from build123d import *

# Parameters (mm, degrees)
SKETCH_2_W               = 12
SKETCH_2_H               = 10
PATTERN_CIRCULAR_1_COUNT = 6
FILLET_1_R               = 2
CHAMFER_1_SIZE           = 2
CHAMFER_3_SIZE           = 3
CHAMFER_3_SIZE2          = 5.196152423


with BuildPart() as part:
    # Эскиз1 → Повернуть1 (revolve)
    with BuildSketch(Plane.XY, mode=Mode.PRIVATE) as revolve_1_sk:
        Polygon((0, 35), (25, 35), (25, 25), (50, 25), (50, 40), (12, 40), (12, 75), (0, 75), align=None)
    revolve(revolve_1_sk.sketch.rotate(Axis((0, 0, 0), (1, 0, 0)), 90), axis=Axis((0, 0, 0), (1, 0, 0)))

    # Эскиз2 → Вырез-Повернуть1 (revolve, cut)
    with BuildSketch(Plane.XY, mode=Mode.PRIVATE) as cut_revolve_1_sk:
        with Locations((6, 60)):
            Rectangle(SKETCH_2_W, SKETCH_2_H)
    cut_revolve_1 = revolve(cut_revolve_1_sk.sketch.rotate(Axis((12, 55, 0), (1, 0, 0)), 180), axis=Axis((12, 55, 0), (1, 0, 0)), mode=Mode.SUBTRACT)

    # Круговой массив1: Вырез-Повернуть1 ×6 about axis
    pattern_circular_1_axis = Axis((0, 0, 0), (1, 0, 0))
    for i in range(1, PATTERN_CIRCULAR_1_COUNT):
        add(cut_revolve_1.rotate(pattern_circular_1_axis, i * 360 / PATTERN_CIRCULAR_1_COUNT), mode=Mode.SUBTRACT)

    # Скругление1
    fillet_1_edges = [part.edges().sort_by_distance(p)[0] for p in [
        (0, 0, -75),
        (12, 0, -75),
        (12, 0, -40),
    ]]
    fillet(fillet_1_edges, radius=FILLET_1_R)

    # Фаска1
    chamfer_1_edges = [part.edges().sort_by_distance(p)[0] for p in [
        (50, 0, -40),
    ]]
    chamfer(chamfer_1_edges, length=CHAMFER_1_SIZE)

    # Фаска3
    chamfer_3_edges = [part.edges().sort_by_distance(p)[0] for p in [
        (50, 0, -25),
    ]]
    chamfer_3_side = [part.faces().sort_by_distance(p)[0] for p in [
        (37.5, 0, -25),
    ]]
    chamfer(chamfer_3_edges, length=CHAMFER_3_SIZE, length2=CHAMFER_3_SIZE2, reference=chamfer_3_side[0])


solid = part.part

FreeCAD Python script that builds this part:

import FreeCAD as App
import Part
import Sketcher
from FreeCAD import Vector


def edges_at(feature, points):
    """Names of the edges that pass closest to the given points."""
    edges = feature.Shape.Edges
    near = lambda p: min(range(len(edges)), key=lambda i: edges[i].distToShape(Part.Vertex(*p))[0])
    return sorted({f"Edge{near(p) + 1}" for p in points})

doc = App.newDocument("Part")
body = doc.addObject("PartDesign::Body", "Body")

# Sketch on XY plane
sketch1 = body.newObject("Sketcher::SketchObject", "Sketch")
sketch1.AttachmentSupport = (doc.getObject("XY_Plane"), [""])
sketch1.MapMode = "FlatFace"
sketch1.addGeometry(Part.LineSegment(Vector(0, 35, 0), Vector(25, 35, 0)), False)
sketch1.addGeometry(Part.LineSegment(Vector(25, 35, 0), Vector(25, 25, 0)), False)
sketch1.addGeometry(Part.LineSegment(Vector(25, 25, 0), Vector(50, 25, 0)), False)
sketch1.addGeometry(Part.LineSegment(Vector(50, 25, 0), Vector(50, 40, 0)), False)
sketch1.addGeometry(Part.LineSegment(Vector(50, 40, 0), Vector(12, 40, 0)), False)
sketch1.addGeometry(Part.LineSegment(Vector(12, 40, 0), Vector(12, 75, 0)), False)
sketch1.addGeometry(Part.LineSegment(Vector(12, 75, 0), Vector(0, 75, 0)), False)
sketch1.addGeometry(Part.LineSegment(Vector(0, 75, 0), Vector(0, 35, 0)), False)
sketch1.addConstraint(Sketcher.Constraint("Coincident", 0, 2, 1, 1))
sketch1.addConstraint(Sketcher.Constraint("Coincident", 1, 2, 2, 1))
sketch1.addConstraint(Sketcher.Constraint("Coincident", 2, 2, 3, 1))
sketch1.addConstraint(Sketcher.Constraint("Coincident", 3, 2, 4, 1))
sketch1.addConstraint(Sketcher.Constraint("Coincident", 4, 2, 5, 1))
sketch1.addConstraint(Sketcher.Constraint("Coincident", 5, 2, 6, 1))
sketch1.addConstraint(Sketcher.Constraint("Coincident", 6, 2, 7, 1))
sketch1.addConstraint(Sketcher.Constraint("Coincident", 7, 2, 0, 1))
sketch1.addConstraint(Sketcher.Constraint("Horizontal", 0))
sketch1.addConstraint(Sketcher.Constraint("Vertical", 1))
sketch1.addConstraint(Sketcher.Constraint("Horizontal", 2))
sketch1.addConstraint(Sketcher.Constraint("Vertical", 3))
sketch1.addConstraint(Sketcher.Constraint("Horizontal", 4))
sketch1.addConstraint(Sketcher.Constraint("Vertical", 5))
sketch1.addConstraint(Sketcher.Constraint("Horizontal", 6))
sketch1.addConstraint(Sketcher.Constraint("Vertical", 7))
sketch1.addConstraint(Sketcher.Constraint("PointOnObject", 6, 2, -2))
sketch1.addConstraint(Sketcher.Constraint("Equal", 0, 2))
sketch1.addConstraint(Sketcher.Constraint("DistanceX", 0, 1, 0, 2, 25.0))
sketch1.addConstraint(Sketcher.Constraint("DistanceX", 4, 2, 4, 1, 38.0))
sketch1.addConstraint(Sketcher.Constraint("DistanceY", 1, 2, 1, 1, 10.0))
sketch1.addConstraint(Sketcher.Constraint("DistanceY", 3, 1, 3, 2, 15.0))
sketch1.addConstraint(Sketcher.Constraint("DistanceY", 5, 1, 5, 2, 35.0))
sketch1.addConstraint(Sketcher.Constraint("DistanceY", -1, 1, 0, 2, 35.0))
revolution = body.newObject("PartDesign::Revolution", "Revolution")
revolution.Profile = sketch1
revolution.ReferenceAxis = (sketch1, ["H_Axis"])
revolution.Angle = 360

# Sketch on XY plane
sketch2 = body.newObject("Sketcher::SketchObject", "Sketch001")
sketch2.AttachmentSupport = (doc.getObject("XY_Plane"), [""])
sketch2.MapMode = "FlatFace"
sketch2.addGeometry(Part.LineSegment(Vector(0, 65, 0), Vector(0, 55, 0)), False)
sketch2.addGeometry(Part.LineSegment(Vector(0, 55, 0), Vector(12, 55, 0)), False)
sketch2.addGeometry(Part.LineSegment(Vector(12, 55, 0), Vector(12, 65, 0)), False)
sketch2.addGeometry(Part.LineSegment(Vector(12, 65, 0), Vector(0, 65, 0)), False)
sketch2.addGeometry(Part.LineSegment(Vector(0, 55, 0), Vector(12, 55, 0)), True)  # axis
sketch2.addConstraint(Sketcher.Constraint("Coincident", 0, 2, 1, 1))
sketch2.addConstraint(Sketcher.Constraint("Coincident", 1, 2, 2, 1))
sketch2.addConstraint(Sketcher.Constraint("Coincident", 2, 2, 3, 1))
sketch2.addConstraint(Sketcher.Constraint("Coincident", 3, 2, 0, 1))
sketch2.addConstraint(Sketcher.Constraint("Vertical", 0))
sketch2.addConstraint(Sketcher.Constraint("Horizontal", 1))
sketch2.addConstraint(Sketcher.Constraint("Vertical", 2))
sketch2.addConstraint(Sketcher.Constraint("Horizontal", 3))
sketch2.addConstraint(Sketcher.Constraint("Horizontal", 4))
sketch2.addConstraint(Sketcher.Constraint("Coincident", 4, 1, 0, 2))
sketch2.addConstraint(Sketcher.Constraint("PointOnObject", 0, 2, -2))
sketch2.addConstraint(Sketcher.Constraint("Vertical", 2, 2, 4, 2))
sketch2.addConstraint(Sketcher.Constraint("DistanceX", 1, 1, 1, 2, 12.0))
sketch2.addConstraint(Sketcher.Constraint("DistanceY", 0, 2, 0, 1, 10.0))
sketch2.addConstraint(Sketcher.Constraint("DistanceY", -1, 1, 0, 2, 55.0))
groove = body.newObject("PartDesign::Groove", "Groove")
groove.Profile = sketch2
groove.ReferenceAxis = (sketch2, ["Axis0"])
groove.Angle = 360
doc.recompute()

polarpattern = body.newObject("PartDesign::PolarPattern", "PolarPattern")
polarpattern.Originals = [groove]
polarpattern.Axis = (doc.getObject("X_Axis"), [""])
polarpattern.Angle = 360
polarpattern.Occurrences = 6
body.Tip = polarpattern
doc.recompute()

fillet = body.newObject("PartDesign::Fillet", "Fillet")
fillet.Base = (polarpattern, edges_at(polarpattern, [(0, 0, -75), (12, 0, -75), (12, 0, -40)]))
fillet.Radius = 2
doc.recompute()

chamfer = body.newObject("PartDesign::Chamfer", "Chamfer")
chamfer.Base = (fillet, edges_at(fillet, [(50, 0, -40)]))
chamfer.Size = 2
doc.recompute()

chamfer2 = body.newObject("PartDesign::Chamfer", "Chamfer001")
chamfer2.Base = (chamfer, edges_at(chamfer, [(50, 0, -25)]))
chamfer2.ChamferType = "Two distances"
chamfer2.Size = 3
chamfer2.Size2 = 5.196152
chamfer2.FlipDirection = True

doc.recompute()
